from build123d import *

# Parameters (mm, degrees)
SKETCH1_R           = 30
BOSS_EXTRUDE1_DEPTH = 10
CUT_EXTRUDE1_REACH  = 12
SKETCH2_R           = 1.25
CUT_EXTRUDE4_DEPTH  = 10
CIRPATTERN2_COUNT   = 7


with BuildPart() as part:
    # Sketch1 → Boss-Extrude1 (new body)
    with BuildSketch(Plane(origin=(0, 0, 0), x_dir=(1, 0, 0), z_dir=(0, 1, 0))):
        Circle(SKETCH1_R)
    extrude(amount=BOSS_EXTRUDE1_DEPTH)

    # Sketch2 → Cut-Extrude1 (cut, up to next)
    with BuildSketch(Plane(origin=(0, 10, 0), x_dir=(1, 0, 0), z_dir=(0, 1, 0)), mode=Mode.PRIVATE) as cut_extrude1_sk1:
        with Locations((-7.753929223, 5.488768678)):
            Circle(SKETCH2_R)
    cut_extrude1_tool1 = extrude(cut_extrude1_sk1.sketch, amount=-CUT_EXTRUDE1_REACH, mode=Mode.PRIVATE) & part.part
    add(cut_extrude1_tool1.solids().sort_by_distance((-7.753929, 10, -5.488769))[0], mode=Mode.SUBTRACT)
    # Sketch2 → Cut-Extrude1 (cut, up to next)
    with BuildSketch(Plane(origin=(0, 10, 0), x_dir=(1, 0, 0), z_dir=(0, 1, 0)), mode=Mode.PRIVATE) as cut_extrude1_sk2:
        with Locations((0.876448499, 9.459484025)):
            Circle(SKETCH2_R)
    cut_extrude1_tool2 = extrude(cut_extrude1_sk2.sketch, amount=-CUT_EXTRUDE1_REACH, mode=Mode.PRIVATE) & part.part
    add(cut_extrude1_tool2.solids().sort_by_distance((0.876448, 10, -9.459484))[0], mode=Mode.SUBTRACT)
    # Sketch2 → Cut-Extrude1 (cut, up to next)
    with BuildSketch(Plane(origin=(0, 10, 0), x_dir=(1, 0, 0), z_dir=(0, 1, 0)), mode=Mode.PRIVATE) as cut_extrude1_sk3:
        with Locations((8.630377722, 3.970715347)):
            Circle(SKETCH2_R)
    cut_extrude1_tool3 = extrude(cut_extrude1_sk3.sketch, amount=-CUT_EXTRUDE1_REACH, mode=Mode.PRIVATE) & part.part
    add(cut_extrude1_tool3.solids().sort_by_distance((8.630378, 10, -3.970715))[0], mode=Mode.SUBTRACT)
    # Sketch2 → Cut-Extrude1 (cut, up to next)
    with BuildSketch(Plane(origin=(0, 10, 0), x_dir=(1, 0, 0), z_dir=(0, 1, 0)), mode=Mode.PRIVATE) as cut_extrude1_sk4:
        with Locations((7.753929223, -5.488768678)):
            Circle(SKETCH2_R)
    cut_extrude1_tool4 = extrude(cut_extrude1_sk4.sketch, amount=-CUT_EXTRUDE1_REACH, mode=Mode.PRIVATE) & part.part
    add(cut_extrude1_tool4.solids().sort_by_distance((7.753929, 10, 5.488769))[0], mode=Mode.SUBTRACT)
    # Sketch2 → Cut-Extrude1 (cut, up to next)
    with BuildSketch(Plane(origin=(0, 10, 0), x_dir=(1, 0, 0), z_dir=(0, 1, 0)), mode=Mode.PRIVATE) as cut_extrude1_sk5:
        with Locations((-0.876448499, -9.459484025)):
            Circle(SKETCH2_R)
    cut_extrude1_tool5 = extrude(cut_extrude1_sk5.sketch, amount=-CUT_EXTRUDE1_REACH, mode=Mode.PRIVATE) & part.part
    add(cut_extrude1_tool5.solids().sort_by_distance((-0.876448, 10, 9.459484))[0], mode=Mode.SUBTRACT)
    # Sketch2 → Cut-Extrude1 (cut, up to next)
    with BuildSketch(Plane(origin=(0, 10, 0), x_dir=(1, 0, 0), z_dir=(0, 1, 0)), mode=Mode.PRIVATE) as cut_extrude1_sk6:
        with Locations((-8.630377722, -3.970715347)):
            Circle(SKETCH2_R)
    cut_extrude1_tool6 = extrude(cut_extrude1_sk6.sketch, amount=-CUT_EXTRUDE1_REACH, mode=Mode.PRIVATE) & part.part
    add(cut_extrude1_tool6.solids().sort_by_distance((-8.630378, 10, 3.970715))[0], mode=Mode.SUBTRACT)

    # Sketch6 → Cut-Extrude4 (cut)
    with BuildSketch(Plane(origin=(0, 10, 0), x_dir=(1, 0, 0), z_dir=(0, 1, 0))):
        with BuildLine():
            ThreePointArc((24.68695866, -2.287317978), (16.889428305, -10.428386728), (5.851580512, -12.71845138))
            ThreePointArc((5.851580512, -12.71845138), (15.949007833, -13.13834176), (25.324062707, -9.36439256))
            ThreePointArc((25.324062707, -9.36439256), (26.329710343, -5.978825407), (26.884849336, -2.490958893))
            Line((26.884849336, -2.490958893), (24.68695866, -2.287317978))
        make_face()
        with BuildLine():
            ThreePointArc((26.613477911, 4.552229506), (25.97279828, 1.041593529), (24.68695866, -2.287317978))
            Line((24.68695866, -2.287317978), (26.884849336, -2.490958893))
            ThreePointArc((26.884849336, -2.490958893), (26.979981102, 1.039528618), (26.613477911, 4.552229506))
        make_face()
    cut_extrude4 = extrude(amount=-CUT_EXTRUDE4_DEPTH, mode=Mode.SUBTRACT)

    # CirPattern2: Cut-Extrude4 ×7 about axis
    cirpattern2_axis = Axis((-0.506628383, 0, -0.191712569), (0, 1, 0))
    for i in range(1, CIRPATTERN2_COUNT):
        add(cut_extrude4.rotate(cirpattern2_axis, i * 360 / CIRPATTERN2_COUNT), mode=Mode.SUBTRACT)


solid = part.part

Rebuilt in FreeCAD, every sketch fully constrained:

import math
import FreeCAD as App
import Part
import Sketcher
from FreeCAD import Vector
Q = App.Units.Quantity

doc = App.newDocument("Part")
params = doc.addObject("Spreadsheet::Sheet", "Params")
for row, (alias, value) in enumerate([
    ("sketch1_diameter", "60 mm"),
    ("pad1_length", "10 mm"),
    ("sketch2_diameter", "2.5 mm"),
    ("sketch3_diameter", "2.5 mm"),
    ("sketch4_diameter", "2.5 mm"),
    ("sketch5_diameter", "2.5 mm"),
    ("sketch6_diameter", "2.5 mm"),
    ("sketch7_diameter", "2.5 mm"),
    ("sketch8_radius", "19 mm"),
    ("sketch8_radius2", "24 mm"),
    ("sketch8_radius3", "27 mm"),
    ("pocket7_length", "10 mm"),
], start=1):
    params.set(f"A{row}", alias)
    params.set(f"B{row}", "=" + value)
    params.setAlias(f"B{row}", alias)

body = doc.addObject("PartDesign::Body", "Body")

# Sketch on XZ plane
sketch1 = body.newObject("Sketcher::SketchObject", "Sketch")
sketch1.AttachmentSupport = (doc.getObject("XZ_Plane"), [""])
sketch1.MapMode = "FlatFace"
sketch1.addGeometry(Part.Circle(Vector(0, 0, 0), Vector(0, 0, 1), 30), False)
sketch1.addConstraint([
    Sketcher.Constraint("Coincident", 0, 3, -1, 1),
    Sketcher.Constraint("Diameter", 0, Q("60 mm")),
])
sketch1.setExpression("Constraints[1]", "Params.sketch1_diameter")
pad1 = body.newObject("PartDesign::Pad", "Pad")
pad1.Profile = sketch1
pad1.setExpression("Length", "Params.pad1_length")
pad1.Reversed = True

# Sketch on XZ plane
sketch2 = body.newObject("Sketcher::SketchObject", "Sketch001")
sketch2.AttachmentSupport = (doc.getObject("XZ_Plane"), [""])
sketch2.MapMode = "FlatFace"
sketch2.AttachmentOffset = App.Placement(Vector(0, 0, -10), App.Rotation())
sketch2.addGeometry(Part.Circle(Vector(-7.8, -5.5, 0), Vector(0, 0, 1), 1.2), False)
sketch2.addConstraint([
    Sketcher.Constraint("Diameter", 0, Q("2.5 mm")),
    Sketcher.Constraint("DistanceX", 0, 3, -1, 1, Q("7.753929 mm")),
    Sketcher.Constraint("DistanceY", 0, 3, -1, 1, Q("5.488769 mm")),
])
sketch2.setExpression("Constraints[0]", "Params.sketch2_diameter")
pocket1 = body.newObject("PartDesign::Pocket", "Pocket")
pocket1.Profile = sketch2
pocket1.Type = "UpToFirst"
pocket1.Reversed = True

# Sketch on XZ plane
sketch3 = body.newObject("Sketcher::SketchObject", "Sketch002")
sketch3.AttachmentSupport = (doc.getObject("XZ_Plane"), [""])
sketch3.MapMode = "FlatFace"
sketch3.AttachmentOffset = App.Placement(Vector(0, 0, -10), App.Rotation())
sketch3.addGeometry(Part.Circle(Vector(0.9, -9.5, 0), Vector(0, 0, 1), 1.2), False)
sketch3.addConstraint([
    Sketcher.Constraint("Diameter", 0, Q("2.5 mm")),
    Sketcher.Constraint("DistanceX", -1, 1, 0, 3, Q("0.876448 mm")),
    Sketcher.Constraint("DistanceY", 0, 3, -1, 1, Q("9.459484 mm")),
])
sketch3.setExpression("Constraints[0]", "Params.sketch3_diameter")
pocket2 = body.newObject("PartDesign::Pocket", "Pocket001")
pocket2.Profile = sketch3
pocket2.Type = "UpToFirst"
pocket2.Reversed = True

# Sketch on XZ plane
sketch4 = body.newObject("Sketcher::SketchObject", "Sketch003")
sketch4.AttachmentSupport = (doc.getObject("XZ_Plane"), [""])
sketch4.MapMode = "FlatFace"
sketch4.AttachmentOffset = App.Placement(Vector(0, 0, -10), App.Rotation())
sketch4.addGeometry(Part.Circle(Vector(8.6, -4, 0), Vector(0, 0, 1), 1.2), False)
sketch4.addConstraint([
    Sketcher.Constraint("Diameter", 0, Q("2.5 mm")),
    Sketcher.Constraint("DistanceX", -1, 1, 0, 3, Q("8.630378 mm")),
    Sketcher.Constraint("DistanceY", 0, 3, -1, 1, Q("3.970715 mm")),
])
sketch4.setExpression("Constraints[0]", "Params.sketch4_diameter")
pocket3 = body.newObject("PartDesign::Pocket", "Pocket002")
pocket3.Profile = sketch4
pocket3.Type = "UpToFirst"
pocket3.Reversed = True

# Sketch on XZ plane
sketch5 = body.newObject("Sketcher::SketchObject", "Sketch004")
sketch5.AttachmentSupport = (doc.getObject("XZ_Plane"), [""])
sketch5.MapMode = "FlatFace"
sketch5.AttachmentOffset = App.Placement(Vector(0, 0, -10), App.Rotation())
sketch5.addGeometry(Part.Circle(Vector(7.8, 5.5, 0), Vector(0, 0, 1), 1.2), False)
sketch5.addConstraint([
    Sketcher.Constraint("Diameter", 0, Q("2.5 mm")),
    Sketcher.Constraint("DistanceX", -1, 1, 0, 3, Q("7.753929 mm")),
    Sketcher.Constraint("DistanceY", -1, 1, 0, 3, Q("5.488769 mm")),
])
sketch5.setExpression("Constraints[0]", "Params.sketch5_diameter")
pocket4 = body.newObject("PartDesign::Pocket", "Pocket003")
pocket4.Profile = sketch5
pocket4.Type = "UpToFirst"
pocket4.Reversed = True

# Sketch on XZ plane
sketch6 = body.newObject("Sketcher::SketchObject", "Sketch005")
sketch6.AttachmentSupport = (doc.getObject("XZ_Plane"), [""])
sketch6.MapMode = "FlatFace"
sketch6.AttachmentOffset = App.Placement(Vector(0, 0, -10), App.Rotation())
sketch6.addGeometry(Part.Circle(Vector(-0.9, 9.5, 0), Vector(0, 0, 1), 1.2), False)
sketch6.addConstraint([
    Sketcher.Constraint("Diameter", 0, Q("2.5 mm")),
    Sketcher.Constraint("DistanceX", 0, 3, -1, 1, Q("0.876448 mm")),
    Sketcher.Constraint("DistanceY", -1, 1, 0, 3, Q("9.459484 mm")),
])
sketch6.setExpression("Constraints[0]", "Params.sketch6_diameter")
pocket5 = body.newObject("PartDesign::Pocket", "Pocket004")
pocket5.Profile = sketch6
pocket5.Type = "UpToFirst"
pocket5.Reversed = True

# Sketch on XZ plane
sketch7 = body.newObject("Sketcher::SketchObject", "Sketch006")
sketch7.AttachmentSupport = (doc.getObject("XZ_Plane"), [""])
sketch7.MapMode = "FlatFace"
sketch7.AttachmentOffset = App.Placement(Vector(0, 0, -10), App.Rotation())
sketch7.addGeometry(Part.Circle(Vector(-8.6, 4, 0), Vector(0, 0, 1), 1.2), False)
sketch7.addConstraint([
    Sketcher.Constraint("Diameter", 0, Q("2.5 mm")),
    Sketcher.Constraint("DistanceX", 0, 3, -1, 1, Q("8.630378 mm")),
    Sketcher.Constraint("DistanceY", -1, 1, 0, 3, Q("3.970715 mm")),
])
sketch7.setExpression("Constraints[0]", "Params.sketch7_diameter")
pocket6 = body.newObject("PartDesign::Pocket", "Pocket005")
pocket6.Profile = sketch7
pocket6.Type = "UpToFirst"
pocket6.Reversed = True

# Sketch on XZ plane
sketch8 = body.newObject("Sketcher::SketchObject", "Sketch007")
sketch8.AttachmentSupport = (doc.getObject("XZ_Plane"), [""])
sketch8.MapMode = "FlatFace"
sketch8.AttachmentOffset = App.Placement(Vector(0, 0, -10), App.Rotation())
sketch8.addGeometry([
    Part.ArcOfCircle(Part.Circle(Vector(8, -6, 0), Vector(0, 0, 1), 19), math.radians(27), math.radians(96)),  # 0
    Part.ArcOfCircle(Part.Circle(Vector(12, -11, 0), Vector(0, 0, 1), 24), math.radians(56), math.radians(105)),  # 1
    Part.ArcOfCircle(Part.Circle(Vector(0, 0, 0), Vector(0, 0, 1), 27), math.radians(5.29), math.radians(20.29)),  # 2
    Part.ArcOfCircle(Part.Circle(Vector(0, 0, 0), Vector(0, 0, 1), 27), math.radians(-9.71), math.radians(5.29)),  # 3
    Part.ArcOfCircle(Part.Circle(Vector(8, -6, 0), Vector(0, 0, 1), 19), math.radians(5), math.radians(27)),  # 4
], False)
sketch8.addConstraint([
    Sketcher.Constraint("Coincident", 0, 2, 1, 2),
    Sketcher.Constraint("Coincident", 1, 1, 2, 2),
    Sketcher.Constraint("Tangent", 2, 1, 3, 2),
    Sketcher.Constraint("Coincident", 3, 1, 4, 1),
    Sketcher.Constraint("Tangent", 4, 2, 0, 1),
    Sketcher.Constraint("Coincident", 2, 3, -1, 1),
    Sketcher.Constraint("Equal", 2, 3),
    Sketcher.Constraint("Equal", 0, 4),
    Sketcher.Constraint("Radius", 0, Q("19 mm")),
    Sketcher.Constraint("Radius", 1, Q("24 mm")),
    Sketcher.Constraint("Radius", 2, Q("27 mm")),
    Sketcher.Constraint("DistanceX", 0, 3, 2, 1, Q("19.200399 mm")),
    Sketcher.Constraint("DistanceX", -1, 1, 0, 3, Q("7.68445 mm")),
    Sketcher.Constraint("DistanceX", -1, 1, 0, 2, Q("5.851581 mm")),
    Sketcher.Constraint("DistanceY", -1, 1, 0, 2, Q("12.718451 mm")),
    Sketcher.Constraint("DistanceX", -1, 1, 4, 2, Q("24.686959 mm")),
    Sketcher.Constraint("DistanceY", 1, 3, 0, 3, Q("4.320428 mm")),
])
sketch8.setExpression("Constraints[8]", "Params.sketch8_radius")
sketch8.setExpression("Constraints[9]", "Params.sketch8_radius2")
sketch8.setExpression("Constraints[10]", "Params.sketch8_radius3")
pocket7 = body.newObject("PartDesign::Pocket", "Pocket006")
pocket7.Profile = sketch8
pocket7.setExpression("Length", "Params.pocket7_length")
pocket7.Reversed = True
doc.recompute()

datumline = body.newObject("PartDesign::Line", "DatumLine")
datumline.Placement = App.Placement(Vector(-0.506628, 0, -0.191713), App.Rotation(Vector(0, 0, 1), Vector(0, 1, 0)))
polarpattern = body.newObject("PartDesign::PolarPattern", "PolarPattern")
polarpattern.Originals = [pocket7]
polarpattern.Axis = (datumline, [""])
polarpattern.Angle = 360
polarpattern.Occurrences = 7
body.Tip = polarpattern

doc.recompute()
